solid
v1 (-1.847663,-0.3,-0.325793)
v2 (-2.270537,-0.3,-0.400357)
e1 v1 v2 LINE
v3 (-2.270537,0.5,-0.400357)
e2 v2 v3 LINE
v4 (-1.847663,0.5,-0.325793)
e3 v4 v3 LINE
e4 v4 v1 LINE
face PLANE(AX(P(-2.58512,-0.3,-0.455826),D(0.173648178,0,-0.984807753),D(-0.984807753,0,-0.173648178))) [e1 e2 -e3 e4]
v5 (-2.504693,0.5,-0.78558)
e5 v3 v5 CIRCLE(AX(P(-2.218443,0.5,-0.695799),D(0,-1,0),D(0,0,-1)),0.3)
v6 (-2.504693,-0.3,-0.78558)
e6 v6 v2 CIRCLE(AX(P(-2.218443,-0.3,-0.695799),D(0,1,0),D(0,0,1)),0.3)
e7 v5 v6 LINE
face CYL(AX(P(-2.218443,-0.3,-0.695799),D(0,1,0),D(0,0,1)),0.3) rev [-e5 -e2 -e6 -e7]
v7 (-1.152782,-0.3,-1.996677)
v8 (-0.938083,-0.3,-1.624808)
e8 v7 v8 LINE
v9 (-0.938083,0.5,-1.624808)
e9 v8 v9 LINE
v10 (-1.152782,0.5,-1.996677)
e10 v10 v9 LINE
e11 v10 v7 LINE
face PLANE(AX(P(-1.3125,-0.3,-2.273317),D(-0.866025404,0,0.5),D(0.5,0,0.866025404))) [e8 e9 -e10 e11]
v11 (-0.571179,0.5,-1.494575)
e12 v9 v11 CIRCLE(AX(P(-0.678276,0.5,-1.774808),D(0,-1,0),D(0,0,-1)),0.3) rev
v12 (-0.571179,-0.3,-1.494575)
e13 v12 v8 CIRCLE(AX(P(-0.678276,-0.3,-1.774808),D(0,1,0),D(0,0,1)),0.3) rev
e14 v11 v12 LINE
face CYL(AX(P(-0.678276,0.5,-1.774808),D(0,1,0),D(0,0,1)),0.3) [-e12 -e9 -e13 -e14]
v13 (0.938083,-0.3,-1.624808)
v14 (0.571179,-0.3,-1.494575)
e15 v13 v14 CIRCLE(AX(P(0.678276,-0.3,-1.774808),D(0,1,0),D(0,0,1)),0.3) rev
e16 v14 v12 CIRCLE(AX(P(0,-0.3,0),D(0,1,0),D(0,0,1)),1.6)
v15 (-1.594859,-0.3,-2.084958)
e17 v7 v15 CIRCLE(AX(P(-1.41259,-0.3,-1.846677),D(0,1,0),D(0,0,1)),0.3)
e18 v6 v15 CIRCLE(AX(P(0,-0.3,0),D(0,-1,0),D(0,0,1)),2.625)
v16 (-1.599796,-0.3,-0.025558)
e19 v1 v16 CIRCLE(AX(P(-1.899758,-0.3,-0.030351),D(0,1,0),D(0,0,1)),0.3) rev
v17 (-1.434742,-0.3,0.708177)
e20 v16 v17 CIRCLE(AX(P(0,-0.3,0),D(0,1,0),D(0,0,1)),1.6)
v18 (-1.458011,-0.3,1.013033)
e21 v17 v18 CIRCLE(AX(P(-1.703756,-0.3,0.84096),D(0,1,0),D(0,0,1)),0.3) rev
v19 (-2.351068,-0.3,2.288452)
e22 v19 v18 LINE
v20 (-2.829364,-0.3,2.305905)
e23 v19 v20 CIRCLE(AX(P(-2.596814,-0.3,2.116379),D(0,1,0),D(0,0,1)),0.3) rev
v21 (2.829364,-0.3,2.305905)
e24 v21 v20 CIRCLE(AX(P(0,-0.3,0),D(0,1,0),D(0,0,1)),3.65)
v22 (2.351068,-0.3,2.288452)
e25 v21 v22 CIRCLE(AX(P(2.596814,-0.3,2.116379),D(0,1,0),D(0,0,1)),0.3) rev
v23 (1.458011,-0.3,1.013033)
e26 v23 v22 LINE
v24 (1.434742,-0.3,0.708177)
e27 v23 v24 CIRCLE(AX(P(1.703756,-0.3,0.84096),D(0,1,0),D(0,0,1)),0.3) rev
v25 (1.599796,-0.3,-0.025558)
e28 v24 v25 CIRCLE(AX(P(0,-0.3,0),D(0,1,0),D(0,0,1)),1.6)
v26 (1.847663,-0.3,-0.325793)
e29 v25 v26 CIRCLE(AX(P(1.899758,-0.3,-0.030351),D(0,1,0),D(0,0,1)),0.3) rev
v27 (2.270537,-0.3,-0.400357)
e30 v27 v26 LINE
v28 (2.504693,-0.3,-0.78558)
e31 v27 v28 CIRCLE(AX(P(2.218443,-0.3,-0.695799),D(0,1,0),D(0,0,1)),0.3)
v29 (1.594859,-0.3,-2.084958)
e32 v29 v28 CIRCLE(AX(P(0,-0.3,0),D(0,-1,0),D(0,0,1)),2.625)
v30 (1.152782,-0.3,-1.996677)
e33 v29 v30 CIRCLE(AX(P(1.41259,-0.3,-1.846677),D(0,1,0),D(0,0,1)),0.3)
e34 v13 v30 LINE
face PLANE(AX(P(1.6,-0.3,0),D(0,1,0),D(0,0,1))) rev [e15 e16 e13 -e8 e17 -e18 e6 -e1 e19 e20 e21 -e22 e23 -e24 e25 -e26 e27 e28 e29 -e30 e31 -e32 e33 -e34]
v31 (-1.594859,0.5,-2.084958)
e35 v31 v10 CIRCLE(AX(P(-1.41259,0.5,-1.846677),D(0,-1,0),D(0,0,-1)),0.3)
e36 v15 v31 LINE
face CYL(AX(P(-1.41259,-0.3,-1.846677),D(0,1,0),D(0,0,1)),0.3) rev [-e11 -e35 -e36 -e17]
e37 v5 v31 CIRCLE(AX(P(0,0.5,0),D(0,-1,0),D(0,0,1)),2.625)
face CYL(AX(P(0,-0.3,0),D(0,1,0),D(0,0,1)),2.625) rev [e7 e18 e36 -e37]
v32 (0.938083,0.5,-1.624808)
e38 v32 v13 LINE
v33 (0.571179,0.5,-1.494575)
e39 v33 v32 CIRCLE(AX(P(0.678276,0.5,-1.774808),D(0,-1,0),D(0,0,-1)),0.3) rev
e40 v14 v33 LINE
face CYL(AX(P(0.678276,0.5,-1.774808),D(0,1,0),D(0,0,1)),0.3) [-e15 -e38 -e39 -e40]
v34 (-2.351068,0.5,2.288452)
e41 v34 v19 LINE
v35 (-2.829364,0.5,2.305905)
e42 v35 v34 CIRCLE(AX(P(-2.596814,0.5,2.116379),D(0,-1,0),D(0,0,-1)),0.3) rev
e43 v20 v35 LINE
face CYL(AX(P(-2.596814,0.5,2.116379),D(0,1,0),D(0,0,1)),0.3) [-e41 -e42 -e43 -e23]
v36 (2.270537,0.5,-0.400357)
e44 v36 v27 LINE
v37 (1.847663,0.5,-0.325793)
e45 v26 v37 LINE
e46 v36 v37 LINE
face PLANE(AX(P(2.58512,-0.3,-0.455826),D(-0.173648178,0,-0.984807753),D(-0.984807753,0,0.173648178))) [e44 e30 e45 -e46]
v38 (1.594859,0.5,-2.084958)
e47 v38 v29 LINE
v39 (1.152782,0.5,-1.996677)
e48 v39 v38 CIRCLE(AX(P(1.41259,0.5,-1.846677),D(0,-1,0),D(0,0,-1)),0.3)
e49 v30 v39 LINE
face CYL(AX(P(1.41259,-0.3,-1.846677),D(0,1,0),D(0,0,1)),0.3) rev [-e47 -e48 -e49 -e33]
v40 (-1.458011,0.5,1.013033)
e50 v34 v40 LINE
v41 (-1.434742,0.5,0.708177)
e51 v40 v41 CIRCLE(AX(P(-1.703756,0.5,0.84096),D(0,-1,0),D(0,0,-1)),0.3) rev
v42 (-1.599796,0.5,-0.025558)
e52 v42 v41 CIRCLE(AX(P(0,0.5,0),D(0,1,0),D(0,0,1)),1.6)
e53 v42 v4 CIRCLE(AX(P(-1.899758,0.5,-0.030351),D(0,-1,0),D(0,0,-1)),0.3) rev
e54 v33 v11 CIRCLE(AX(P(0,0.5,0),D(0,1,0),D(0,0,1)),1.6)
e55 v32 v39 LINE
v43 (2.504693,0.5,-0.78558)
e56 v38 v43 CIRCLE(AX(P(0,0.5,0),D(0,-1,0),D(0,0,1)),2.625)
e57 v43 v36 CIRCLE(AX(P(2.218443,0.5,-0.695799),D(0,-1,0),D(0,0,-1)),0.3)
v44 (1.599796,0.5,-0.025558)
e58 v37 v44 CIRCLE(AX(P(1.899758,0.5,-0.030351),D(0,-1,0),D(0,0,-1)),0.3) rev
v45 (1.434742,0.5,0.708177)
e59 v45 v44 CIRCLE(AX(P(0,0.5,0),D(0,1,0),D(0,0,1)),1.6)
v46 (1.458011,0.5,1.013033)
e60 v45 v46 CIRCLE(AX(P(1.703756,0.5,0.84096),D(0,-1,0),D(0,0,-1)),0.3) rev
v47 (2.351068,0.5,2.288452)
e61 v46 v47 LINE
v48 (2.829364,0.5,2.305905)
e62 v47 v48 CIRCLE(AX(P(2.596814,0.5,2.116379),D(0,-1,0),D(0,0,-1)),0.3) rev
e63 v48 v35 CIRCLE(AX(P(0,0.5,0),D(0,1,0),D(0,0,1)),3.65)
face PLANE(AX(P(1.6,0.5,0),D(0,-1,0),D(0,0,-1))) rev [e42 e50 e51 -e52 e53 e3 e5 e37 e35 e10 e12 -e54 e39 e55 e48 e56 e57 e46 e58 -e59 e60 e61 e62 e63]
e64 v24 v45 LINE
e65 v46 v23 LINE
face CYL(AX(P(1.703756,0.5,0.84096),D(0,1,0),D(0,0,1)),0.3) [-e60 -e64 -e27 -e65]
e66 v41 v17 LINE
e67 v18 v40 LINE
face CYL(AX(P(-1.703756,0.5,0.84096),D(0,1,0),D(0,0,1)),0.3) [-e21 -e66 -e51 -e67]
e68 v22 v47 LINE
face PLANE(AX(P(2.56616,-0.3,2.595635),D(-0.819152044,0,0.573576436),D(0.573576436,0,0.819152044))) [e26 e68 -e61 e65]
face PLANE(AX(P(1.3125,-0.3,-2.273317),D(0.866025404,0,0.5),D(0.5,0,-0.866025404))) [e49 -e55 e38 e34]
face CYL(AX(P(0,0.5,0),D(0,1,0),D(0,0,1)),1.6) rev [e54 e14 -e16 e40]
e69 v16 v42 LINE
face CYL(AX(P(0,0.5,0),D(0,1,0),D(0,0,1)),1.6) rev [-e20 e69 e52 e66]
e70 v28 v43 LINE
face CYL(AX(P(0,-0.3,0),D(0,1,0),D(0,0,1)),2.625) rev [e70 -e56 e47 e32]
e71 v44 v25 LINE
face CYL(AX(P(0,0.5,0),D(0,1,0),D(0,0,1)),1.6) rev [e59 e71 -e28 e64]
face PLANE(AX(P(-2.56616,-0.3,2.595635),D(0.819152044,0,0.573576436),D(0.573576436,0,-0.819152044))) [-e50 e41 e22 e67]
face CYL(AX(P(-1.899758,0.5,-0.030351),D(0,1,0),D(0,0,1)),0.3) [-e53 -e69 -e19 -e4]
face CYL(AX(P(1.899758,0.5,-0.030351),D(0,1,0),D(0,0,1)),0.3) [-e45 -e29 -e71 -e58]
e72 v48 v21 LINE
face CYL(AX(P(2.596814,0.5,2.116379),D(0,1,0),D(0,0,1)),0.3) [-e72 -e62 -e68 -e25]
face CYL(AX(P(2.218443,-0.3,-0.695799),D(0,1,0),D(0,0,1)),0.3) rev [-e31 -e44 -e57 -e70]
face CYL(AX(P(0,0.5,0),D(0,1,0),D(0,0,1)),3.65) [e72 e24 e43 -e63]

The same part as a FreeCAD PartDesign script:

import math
import FreeCAD as App
import Part
import Sketcher
Q = App.Units.Quantity


def edges_at(feature, points):
    """Names of the edges that pass closest to the given points."""
    edges = feature.Shape.Edges
    near = lambda p: min(range(len(edges)), key=lambda i: edges[i].distToShape(Part.Vertex(*p))[0])
    return sorted({f"Edge{near(p) + 1}" for p in points})

doc = App.newDocument("Part")
body = doc.addObject("PartDesign::Body", "Body")

# Sketch on XY plane
sketch1 = body.newObject("Sketcher::SketchObject", "Sketch")
sketch1.AttachmentSupport = (doc.getObject("XY_Plane"), [""])
sketch1.MapMode = "FlatFace"
sketch1.addGeometry(Part.LineSegment(App.Vector(1.6, 0.5, 0), App.Vector(1.6, -0.3, 0)), False)
sketch1.addGeometry(Part.LineSegment(App.Vector(1.6, -0.3, 0), App.Vector(3.6, -0.3, 0)), False)
sketch1.addGeometry(Part.LineSegment(App.Vector(3.6, -0.3, 0), App.Vector(3.6, 0.5, 0)), False)
sketch1.addGeometry(Part.LineSegment(App.Vector(3.6, 0.5, 0), App.Vector(1.6, 0.5, 0)), False)
sketch1.addConstraint(Sketcher.Constraint("Coincident", 0, 2, 1, 1))
sketch1.addConstraint(Sketcher.Constraint("Coincident", 1, 2, 2, 1))
sketch1.addConstraint(Sketcher.Constraint("Coincident", 2, 2, 3, 1))
sketch1.addConstraint(Sketcher.Constraint("Coincident", 3, 2, 0, 1))
sketch1.addConstraint(Sketcher.Constraint("Vertical", 0))
sketch1.addConstraint(Sketcher.Constraint("Horizontal", 1))
sketch1.addConstraint(Sketcher.Constraint("Vertical", 2))
sketch1.addConstraint(Sketcher.Constraint("Horizontal", 3))
sketch1.addConstraint(Sketcher.Constraint("DistanceY", 0, 2, 0, 1, Q("0.8 mm")))
sketch1.addConstraint(Sketcher.Constraint("DistanceX", 1, 1, 1, 2, Q("2.05 mm")))
sketch1.addConstraint(Sketcher.Constraint("DistanceX", -1, 1, 0, 2, Q("1.6 mm")))
sketch1.addConstraint(Sketcher.Constraint("DistanceY", 0, 2, -1, 1, Q("0.3 mm")))
revolution = body.newObject("PartDesign::Revolution", "Revolution")
revolution.Profile = sketch1
revolution.ReferenceAxis = (sketch1, ["V_Axis"])
revolution.Angle = 360

# Sketch on XZ plane
sketch2 = body.newObject("Sketcher::SketchObject", "Sketch001")
sketch2.AttachmentSupport = (doc.getObject("XZ_Plane"), [""])
sketch2.MapMode = "FlatFace"
sketch2.addGeometry(Part.LineSegment(App.Vector(-5.7, -5.7, 0), App.Vector(-5.7, 5.7, 0)), False)
sketch2.addGeometry(Part.LineSegment(App.Vector(-5.7, 5.7, 0), App.Vector(5.7, 5.7, 0)), False)
sketch2.addGeometry(Part.LineSegment(App.Vector(5.7, 5.7, 0), App.Vector(5.7, -5.7, 0)), False)
sketch2.addGeometry(Part.LineSegment(App.Vector(5.7, -5.7, 0), App.Vector(-5.7, -5.7, 0)), False)
sketch2.addGeometry(Part.ArcOfCircle(Part.Circle(App.Vector(0, 0, 0), App.Vector(0, 0, 1), 3.6), math.radians(135), math.radians(405)), False)
sketch2.addGeometry(Part.LineSegment(App.Vector(2.6, 2.6, 0), App.Vector(1.4, 0.9, 0)), False)
sketch2.addGeometry(Part.ArcOfCircle(Part.Circle(App.Vector(0, 0, 0), App.Vector(0, 0, 1), 1.6), math.radians(-10), math.radians(32)), False)
sketch2.addGeometry(Part.LineSegment(App.Vector(1.6, -0.3, 0), App.Vector(2.6, -0.5, 0)), False)
sketch2.addGeometry(Part.ArcOfCircle(Part.Circle(App.Vector(0, 0, 0), App.Vector(0, 0, 1), 2.6), math.radians(-60), math.radians(-10)), False)
sketch2.addGeometry(Part.LineSegment(App.Vector(1.3, -2.3, 0), App.Vector(0.8, -1.4, 0)), False)
sketch2.addGeometry(Part.ArcOfCircle(Part.Circle(App.Vector(0, 0, 0), App.Vector(0, 0, 1), 1.6), math.radians(-120), math.radians(-60)), False)
sketch2.addGeometry(Part.LineSegment(App.Vector(-0.8, -1.4, 0), App.Vector(-1.3, -2.3, 0)), False)
sketch2.addGeometry(Part.ArcOfCircle(Part.Circle(App.Vector(0, 0, 0), App.Vector(0, 0, 1), 2.6), math.radians(-170), math.radians(-120)), False)
sketch2.addGeometry(Part.LineSegment(App.Vector(-2.6, -0.5, 0), App.Vector(-1.6, -0.3, 0)), False)
sketch2.addGeometry(Part.ArcOfCircle(Part.Circle(App.Vector(0, 0, 0), App.Vector(0, 0, 1), 1.6), math.radians(148), math.radians(190)), False)
sketch2.addGeometry(Part.LineSegment(App.Vector(-1.4, 0.9, 0), App.Vector(-2.6, 2.6, 0)), False)
sketch2.addConstraint(Sketcher.Constraint("Coincident", 0, 2, 1, 1))
sketch2.addConstraint(Sketcher.Constraint("Coincident", 1, 2, 2, 1))
sketch2.addConstraint(Sketcher.Constraint("Coincident", 2, 2, 3, 1))
sketch2.addConstraint(Sketcher.Constraint("Coincident", 3, 2, 0, 1))
sketch2.addConstraint(Sketcher.Constraint("Coincident", 4, 2, 5, 1))
sketch2.addConstraint(Sketcher.Constraint("Coincident", 5, 2, 6, 2))
sketch2.addConstraint(Sketcher.Constraint("Coincident", 6, 1, 7, 1))
sketch2.addConstraint(Sketcher.Constraint("Coincident", 7, 2, 8, 2))
sketch2.addConstraint(Sketcher.Constraint("Coincident", 8, 1, 9, 1))
sketch2.addConstraint(Sketcher.Constraint("Coincident", 9, 2, 10, 2))
sketch2.addConstraint(Sketcher.Constraint("Coincident", 10, 1, 11, 1))
sketch2.addConstraint(Sketcher.Constraint("Coincident", 11, 2, 12, 2))
sketch2.addConstraint(Sketcher.Constraint("Coincident", 12, 1, 13, 1))
sketch2.addConstraint(Sketcher.Constraint("Coincident", 13, 2, 14, 2))
sketch2.addConstraint(Sketcher.Constraint("Coincident", 14, 1, 15, 1))
sketch2.addConstraint(Sketcher.Constraint("Coincident", 15, 2, 4, 1))
sketch2.addConstraint(Sketcher.Constraint("Vertical", 0))
sketch2.addConstraint(Sketcher.Constraint("Horizontal", 1))
sketch2.addConstraint(Sketcher.Constraint("Vertical", 2))
sketch2.addConstraint(Sketcher.Constraint("Horizontal", 3))
sketch2.addConstraint(Sketcher.Constraint("Coincident", 4, 3, -1, 1))
sketch2.addConstraint(Sketcher.Constraint("Coincident", 6, 3, -1, 1))
sketch2.addConstraint(Sketcher.Constraint("Coincident", 8, 3, -1, 1))
sketch2.addConstraint(Sketcher.Constraint("Coincident", 10, 3, -1, 1))
sketch2.addConstraint(Sketcher.Constraint("Coincident", 12, 3, -1, 1))
sketch2.addConstraint(Sketcher.Constraint("Coincident", 14, 3, -1, 1))
sketch2.addConstraint(Sketcher.Constraint("Equal", 6, 10))
sketch2.addConstraint(Sketcher.Constraint("Equal", 8, 12))
sketch2.addConstraint(Sketcher.Constraint("Equal", 10, 14))
sketch2.addConstraint(Sketcher.Constraint("Symmetric", 0, 2, 2, 2, -1, 1))
sketch2.addConstraint(Sketcher.Constraint("Horizontal", 9, 2, 10, 1))
sketch2.addConstraint(Sketcher.Constraint("Horizontal", 8, 1, 11, 2))
sketch2.addConstraint(Sketcher.Constraint("Horizontal", 7, 2, 12, 1))
sketch2.addConstraint(Sketcher.Constraint("Horizontal", 6, 1, 13, 2))
sketch2.addConstraint(Sketcher.Constraint("Horizontal", 5, 2, 14, 1))
sketch2.addConstraint(Sketcher.Constraint("Horizontal", 4, 2, 15, 2))
sketch2.addConstraint(Sketcher.Constraint("Equal", 3, 0))
sketch2.addConstraint(Sketcher.Constraint("Radius", 6, Q("1.6 mm")))
sketch2.addConstraint(Sketcher.Constraint("Angle", 5, Q("-125 deg")))
sketch2.addConstraint(Sketcher.Constraint("Angle", 7, Q("-10 deg")))
sketch2.addConstraint(Sketcher.Constraint("Angle", 9, Q("120 deg")))
sketch2.addConstraint(Sketcher.Constraint("Radius", 4, Q("3.65 mm")))
sketch2.addConstraint(Sketcher.Constraint("Radius", 8, Q("2.625 mm")))
sketch2.addConstraint(Sketcher.Constraint("DistanceX", 1, 1, 1, 2, Q("11.37 mm")))
sketch2.addConstraint(Sketcher.Constraint("DistanceX", -1, 1, 9, 2, Q("0.8 mm")))
sketch2.addConstraint(Sketcher.Constraint("DistanceX", -1, 1, 5, 2, Q("1.35 mm")))
sketch2.addConstraint(Sketcher.Constraint("DistanceX", -1, 1, 7, 2, Q("2.58512 mm")))
pocket1 = body.newObject("PartDesign::Pocket", "Pocket")
pocket1.Profile = sketch2
pocket1.Type = "ThroughAll"
pocket1.Midplane = True
doc.recompute()

fillet = body.newObject("PartDesign::Fillet", "Fillet")
fillet.Base = (pocket1, edges_at(pocket1, [
    (2.566, 0.1, 2.596),
    (1.35, 0.1, 0.859),
    (1.576, 0.1, -0.278),
    (2.585, 0.1, -0.456),
    (1.312, 0.1, -2.273),
    (0.8, 0.1, -1.386),
    (-0.8, 0.1, -1.386),
    (-1.312, 0.1, -2.273),
    (-2.585, 0.1, -0.456),
    (-1.576, 0.1, -0.278),
    (-1.35, 0.1, 0.859),
    (-2.566, 0.1, 2.596),
]))
fillet.Radius = 0.3

doc.recompute()
